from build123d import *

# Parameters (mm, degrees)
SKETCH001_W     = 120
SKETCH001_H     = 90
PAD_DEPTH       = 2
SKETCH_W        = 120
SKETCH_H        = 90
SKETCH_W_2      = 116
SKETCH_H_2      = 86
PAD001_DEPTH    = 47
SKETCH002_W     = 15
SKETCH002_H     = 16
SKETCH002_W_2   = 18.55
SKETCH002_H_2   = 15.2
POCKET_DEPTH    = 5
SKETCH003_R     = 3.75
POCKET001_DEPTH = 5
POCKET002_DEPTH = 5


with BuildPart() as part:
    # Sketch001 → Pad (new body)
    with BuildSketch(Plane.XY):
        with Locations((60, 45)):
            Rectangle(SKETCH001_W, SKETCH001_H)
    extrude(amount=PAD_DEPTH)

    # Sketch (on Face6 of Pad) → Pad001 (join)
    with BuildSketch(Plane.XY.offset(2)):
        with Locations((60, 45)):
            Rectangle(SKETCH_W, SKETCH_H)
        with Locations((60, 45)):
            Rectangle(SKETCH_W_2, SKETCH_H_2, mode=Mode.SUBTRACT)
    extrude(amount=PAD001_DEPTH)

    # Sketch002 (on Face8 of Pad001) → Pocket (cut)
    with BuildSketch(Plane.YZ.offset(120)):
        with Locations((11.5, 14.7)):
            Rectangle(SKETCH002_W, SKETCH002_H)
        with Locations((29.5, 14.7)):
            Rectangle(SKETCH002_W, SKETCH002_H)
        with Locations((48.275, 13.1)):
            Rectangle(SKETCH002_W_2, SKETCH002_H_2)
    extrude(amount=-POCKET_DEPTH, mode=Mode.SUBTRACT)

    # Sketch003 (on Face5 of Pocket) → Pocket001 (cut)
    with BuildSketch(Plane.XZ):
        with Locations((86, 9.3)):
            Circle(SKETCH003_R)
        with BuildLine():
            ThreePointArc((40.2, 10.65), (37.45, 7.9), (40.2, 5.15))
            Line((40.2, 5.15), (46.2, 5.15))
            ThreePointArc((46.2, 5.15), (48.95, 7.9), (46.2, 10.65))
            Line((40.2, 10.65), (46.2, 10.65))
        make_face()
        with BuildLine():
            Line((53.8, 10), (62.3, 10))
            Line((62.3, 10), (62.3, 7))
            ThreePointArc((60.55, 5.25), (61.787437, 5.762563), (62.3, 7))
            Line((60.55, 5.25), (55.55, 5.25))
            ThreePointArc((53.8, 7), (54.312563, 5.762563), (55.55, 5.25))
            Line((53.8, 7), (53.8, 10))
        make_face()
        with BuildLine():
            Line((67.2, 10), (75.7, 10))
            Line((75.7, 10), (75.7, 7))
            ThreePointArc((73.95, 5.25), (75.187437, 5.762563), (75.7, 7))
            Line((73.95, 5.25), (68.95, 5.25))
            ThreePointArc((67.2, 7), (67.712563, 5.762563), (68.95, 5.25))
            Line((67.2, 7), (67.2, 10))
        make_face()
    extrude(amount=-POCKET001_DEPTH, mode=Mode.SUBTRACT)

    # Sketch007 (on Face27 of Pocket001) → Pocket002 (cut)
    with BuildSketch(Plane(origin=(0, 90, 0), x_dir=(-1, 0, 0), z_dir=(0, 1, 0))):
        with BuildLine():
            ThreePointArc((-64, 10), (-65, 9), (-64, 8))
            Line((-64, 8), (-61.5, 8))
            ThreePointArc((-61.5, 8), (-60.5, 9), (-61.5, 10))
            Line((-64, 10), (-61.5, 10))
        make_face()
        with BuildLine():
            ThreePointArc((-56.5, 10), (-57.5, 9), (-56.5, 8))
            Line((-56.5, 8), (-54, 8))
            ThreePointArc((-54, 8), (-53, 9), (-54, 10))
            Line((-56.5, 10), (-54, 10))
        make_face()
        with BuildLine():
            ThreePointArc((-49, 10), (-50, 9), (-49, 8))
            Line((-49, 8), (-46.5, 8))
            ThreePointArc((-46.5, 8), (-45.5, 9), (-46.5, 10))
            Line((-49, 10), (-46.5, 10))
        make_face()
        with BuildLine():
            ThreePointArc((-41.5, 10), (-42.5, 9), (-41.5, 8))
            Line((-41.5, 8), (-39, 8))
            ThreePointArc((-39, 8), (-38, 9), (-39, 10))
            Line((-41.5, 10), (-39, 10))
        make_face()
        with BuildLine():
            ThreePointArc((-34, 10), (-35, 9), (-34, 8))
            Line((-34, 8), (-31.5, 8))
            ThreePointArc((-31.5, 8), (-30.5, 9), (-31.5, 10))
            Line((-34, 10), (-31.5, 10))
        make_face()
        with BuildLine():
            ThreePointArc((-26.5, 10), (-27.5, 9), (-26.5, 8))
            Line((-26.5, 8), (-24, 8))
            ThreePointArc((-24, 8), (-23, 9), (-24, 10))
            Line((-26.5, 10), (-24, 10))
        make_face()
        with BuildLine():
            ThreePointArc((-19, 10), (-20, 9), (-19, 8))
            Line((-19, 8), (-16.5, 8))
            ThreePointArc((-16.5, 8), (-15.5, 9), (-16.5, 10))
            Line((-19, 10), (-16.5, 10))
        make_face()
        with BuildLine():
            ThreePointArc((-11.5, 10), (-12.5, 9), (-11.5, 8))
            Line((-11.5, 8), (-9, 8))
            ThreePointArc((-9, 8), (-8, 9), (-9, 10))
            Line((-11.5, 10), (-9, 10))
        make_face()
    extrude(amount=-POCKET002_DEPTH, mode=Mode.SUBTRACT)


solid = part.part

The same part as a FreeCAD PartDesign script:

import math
import FreeCAD as App
import Part
import Sketcher

doc = App.newDocument("Part")
body = doc.addObject("PartDesign::Body", "Body")

# Sketch on XY plane
sketch1 = body.newObject("Sketcher::SketchObject", "Sketch")
sketch1.AttachmentSupport = (doc.getObject("XY_Plane"), [""])
sketch1.MapMode = "FlatFace"
sketch1.addGeometry([
    Part.LineSegment(App.Vector(0, 90, 0), App.Vector(0, 0, 0)),
    Part.LineSegment(App.Vector(0, 0, 0), App.Vector(120, 0, 0)),
    Part.LineSegment(App.Vector(120, 0, 0), App.Vector(120, 90, 0)),
    Part.LineSegment(App.Vector(120, 90, 0), App.Vector(0, 90, 0)),
], False)
sketch1.addConstraint([
    Sketcher.Constraint("Coincident", 0, 2, 1, 1),
    Sketcher.Constraint("Coincident", 1, 2, 2, 1),
    Sketcher.Constraint("Coincident", 2, 2, 3, 1),
    Sketcher.Constraint("Coincident", 3, 2, 0, 1),
    Sketcher.Constraint("Vertical", 0),
    Sketcher.Constraint("Horizontal", 1),
    Sketcher.Constraint("Vertical", 2),
    Sketcher.Constraint("Horizontal", 3),
    Sketcher.Constraint("Coincident", 0, 2, -1, 1),
    Sketcher.Constraint("DistanceX", 1, 1, 1, 2, 120.0),
    Sketcher.Constraint("DistanceY", 0, 2, 0, 1, 90.0),
])
pad1 = body.newObject("PartDesign::Pad", "Pad")
pad1.Profile = sketch1
pad1.Length = 2

# Sketch on XY plane
sketch2 = body.newObject("Sketcher::SketchObject", "Sketch001")
sketch2.AttachmentSupport = (doc.getObject("XY_Plane"), [""])
sketch2.MapMode = "FlatFace"
sketch2.AttachmentOffset = App.Placement(App.Vector(0, 0, 2), App.Rotation())
sketch2.addGeometry([
    Part.LineSegment(App.Vector(0, 90, 0), App.Vector(0, 0, 0)),  # 0
    Part.LineSegment(App.Vector(0, 0, 0), App.Vector(120, 0, 0)),  # 1
    Part.LineSegment(App.Vector(120, 0, 0), App.Vector(120, 90, 0)),  # 2
    Part.LineSegment(App.Vector(120, 90, 0), App.Vector(0, 90, 0)),  # 3
    Part.LineSegment(App.Vector(118, 2, 0), App.Vector(2, 2, 0)),  # 4
    Part.LineSegment(App.Vector(2, 2, 0), App.Vector(2, 88, 0)),  # 5
    Part.LineSegment(App.Vector(2, 88, 0), App.Vector(118, 88, 0)),  # 6
    Part.LineSegment(App.Vector(118, 88, 0), App.Vector(118, 2, 0)),  # 7
], False)
sketch2.addConstraint([
    Sketcher.Constraint("Coincident", 0, 2, 1, 1),
    Sketcher.Constraint("Coincident", 1, 2, 2, 1),
    Sketcher.Constraint("Coincident", 2, 2, 3, 1),
    Sketcher.Constraint("Coincident", 3, 2, 0, 1),
    Sketcher.Constraint("Coincident", 4, 2, 5, 1),
    Sketcher.Constraint("Coincident", 5, 2, 6, 1),
    Sketcher.Constraint("Coincident", 6, 2, 7, 1),
    Sketcher.Constraint("Coincident", 7, 2, 4, 1),
    Sketcher.Constraint("Vertical", 0),
    Sketcher.Constraint("Horizontal", 1),
    Sketcher.Constraint("Vertical", 2),
    Sketcher.Constraint("Horizontal", 3),
    Sketcher.Constraint("Horizontal", 4),
    Sketcher.Constraint("Vertical", 5),
    Sketcher.Constraint("Horizontal", 6),
    Sketcher.Constraint("Vertical", 7),
    Sketcher.Constraint("Coincident", 0, 2, -1, 1),
    Sketcher.Constraint("DistanceX", 1, 1, 1, 2, 120.0),
    Sketcher.Constraint("DistanceX", 4, 2, 4, 1, 116.0),
    Sketcher.Constraint("DistanceY", 0, 2, 0, 1, 90.0),
    Sketcher.Constraint("DistanceY", 5, 1, 5, 2, 86.0),
    Sketcher.Constraint("DistanceX", -1, 1, 4, 2, 2.0),
    Sketcher.Constraint("DistanceY", -1, 1, 4, 2, 2.0),
])
pad2 = body.newObject("PartDesign::Pad", "Pad001")
pad2.Profile = sketch2
pad2.Length = 47

# Sketch on YZ plane
sketch3 = body.newObject("Sketcher::SketchObject", "Sketch002")
sketch3.AttachmentSupport = (doc.getObject("YZ_Plane"), [""])
sketch3.MapMode = "FlatFace"
sketch3.AttachmentOffset = App.Placement(App.Vector(0, 0, 120), App.Rotation())
sketch3.addGeometry([
    Part.LineSegment(App.Vector(4, 23, 0), App.Vector(4, 7, 0)),  # 0
    Part.LineSegment(App.Vector(4, 7, 0), App.Vector(19, 7, 0)),  # 1
    Part.LineSegment(App.Vector(19, 7, 0), App.Vector(19, 23, 0)),  # 2
    Part.LineSegment(App.Vector(19, 23, 0), App.Vector(4, 23, 0)),  # 3
    Part.LineSegment(App.Vector(22, 23, 0), App.Vector(22, 7, 0)),  # 4
    Part.LineSegment(App.Vector(22, 7, 0), App.Vector(37, 7, 0)),  # 5
    Part.LineSegment(App.Vector(37, 7, 0), App.Vector(37, 23, 0)),  # 6
    Part.LineSegment(App.Vector(37, 23, 0), App.Vector(22, 23, 0)),  # 7
    Part.LineSegment(App.Vector(39, 21, 0), App.Vector(39, 6, 0)),  # 8
    Part.LineSegment(App.Vector(39, 6, 0), App.Vector(58, 6, 0)),  # 9
    Part.LineSegment(App.Vector(58, 6, 0), App.Vector(58, 21, 0)),  # 10
    Part.LineSegment(App.Vector(58, 21, 0), App.Vector(39, 21, 0)),  # 11
], False)
sketch3.addConstraint([
    Sketcher.Constraint("Coincident", 0, 2, 1, 1),
    Sketcher.Constraint("Coincident", 1, 2, 2, 1),
    Sketcher.Constraint("Coincident", 2, 2, 3, 1),
    Sketcher.Constraint("Coincident", 3, 2, 0, 1),
    Sketcher.Constraint("Coincident", 4, 2, 5, 1),
    Sketcher.Constraint("Coincident", 5, 2, 6, 1),
    Sketcher.Constraint("Coincident", 6, 2, 7, 1),
    Sketcher.Constraint("Coincident", 7, 2, 4, 1),
    Sketcher.Constraint("Coincident", 8, 2, 9, 1),
    Sketcher.Constraint("Coincident", 9, 2, 10, 1),
    Sketcher.Constraint("Coincident", 10, 2, 11, 1),
    Sketcher.Constraint("Coincident", 11, 2, 8, 1),
    Sketcher.Constraint("Vertical", 0),
    Sketcher.Constraint("Horizontal", 1),
    Sketcher.Constraint("Vertical", 2),
    Sketcher.Constraint("Horizontal", 3),
    Sketcher.Constraint("Vertical", 4),
    Sketcher.Constraint("Horizontal", 5),
    Sketcher.Constraint("Vertical", 6),
    Sketcher.Constraint("Horizontal", 7),
    Sketcher.Constraint("Vertical", 8),
    Sketcher.Constraint("Horizontal", 9),
    Sketcher.Constraint("Vertical", 10),
    Sketcher.Constraint("Horizontal", 11),
    Sketcher.Constraint("Horizontal", 1, 2, 4, 2),
    Sketcher.Constraint("Horizontal", 3, 2, 6, 2),
    Sketcher.Constraint("Equal", 3, 5),
    Sketcher.Constraint("DistanceX", 1, 1, 1, 2, 15.0),
    Sketcher.Constraint("DistanceY", 0, 2, 0, 1, 16.0),
    Sketcher.Constraint("DistanceY", 8, 2, 8, 1, 15.2),
    Sketcher.Constraint("DistanceX", -1, 1, 0, 2, 4.0),
    Sketcher.Constraint("DistanceX", -1, 1, 4, 2, 22.0),
    Sketcher.Constraint("DistanceX", -1, 1, 8, 2, 39.0),
    Sketcher.Constraint("DistanceY", 10, 2, 6, 2, 2.0),
    Sketcher.Constraint("DistanceX", 9, 1, 9, 2, 18.55),
    Sketcher.Constraint("DistanceY", -1, 1, 0, 2, 6.7),
])
pocket1 = body.newObject("PartDesign::Pocket", "Pocket")
pocket1.Profile = sketch3
pocket1.Length = 5

# Sketch on XZ plane
sketch4 = body.newObject("Sketcher::SketchObject", "Sketch003")
sketch4.AttachmentSupport = (doc.getObject("XZ_Plane"), [""])
sketch4.MapMode = "FlatFace"
sketch4.addGeometry([
    Part.Circle(App.Vector(86, 9.3, 0), App.Vector(0, 0, 1), 3.8),  # 0
    Part.ArcOfCircle(Part.Circle(App.Vector(40.2, 7.9, 0), App.Vector(0, 0, 1), 2.8), math.radians(90), math.radians(270)),  # 1
    Part.LineSegment(App.Vector(40.2, 5.2, 0), App.Vector(46.2, 5.2, 0)),  # 2
    Part.ArcOfCircle(Part.Circle(App.Vector(46.2, 7.9, 0), App.Vector(0, 0, 1), 2.8), math.radians(-90), math.radians(90)),  # 3
    Part.LineSegment(App.Vector(46.2, 10.7, 0), App.Vector(40.2, 10.7, 0)),  # 4
    Part.LineSegment(App.Vector(62.3, 10, 0), App.Vector(53.8, 10, 0)),  # 5
    Part.LineSegment(App.Vector(53.8, 10, 0), App.Vector(53.8, 7, 0)),  # 6
    Part.ArcOfCircle(Part.Circle(App.Vector(55.5, 7, 0), App.Vector(0, 0, 1), 1.7), math.radians(180), math.radians(270)),  # 7
    Part.LineSegment(App.Vector(55.5, 5.2, 0), App.Vector(60.5, 5.2, 0)),  # 8
    Part.ArcOfCircle(Part.Circle(App.Vector(60.6, 7, 0), App.Vector(0, 0, 1), 1.7), math.radians(-90), math.radians(0)),  # 9
    Part.LineSegment(App.Vector(62.3, 7, 0), App.Vector(62.3, 10, 0)),  # 10
    Part.LineSegment(App.Vector(75.7, 10, 0), App.Vector(67.2, 10, 0)),  # 11
    Part.LineSegment(App.Vector(67.2, 10, 0), App.Vector(67.2, 7, 0)),  # 12
    Part.ArcOfCircle(Part.Circle(App.Vector(68.9, 7, 0), App.Vector(0, 0, 1), 1.7), math.radians(180), math.radians(270)),  # 13
    Part.LineSegment(App.Vector(69, 5.2, 0), App.Vector(74, 5.2, 0)),  # 14
    Part.ArcOfCircle(Part.Circle(App.Vector(74, 7, 0), App.Vector(0, 0, 1), 1.7), math.radians(-90), math.radians(0)),  # 15
    Part.LineSegment(App.Vector(75.7, 7, 0), App.Vector(75.7, 10, 0)),  # 16
], False)
sketch4.addConstraint([
    Sketcher.Constraint("Tangent", 1, 2, 2, 1),
    Sketcher.Constraint("Tangent", 2, 2, 3, 1),
    Sketcher.Constraint("Tangent", 3, 2, 4, 1),
    Sketcher.Constraint("Tangent", 4, 2, 1, 1),
    Sketcher.Constraint("Coincident", 5, 2, 6, 1),
    Sketcher.Constraint("Tangent", 6, 2, 7, 1),
    Sketcher.Constraint("Tangent", 7, 2, 8, 1),
    Sketcher.Constraint("Tangent", 8, 2, 9, 1),
    Sketcher.Constraint("Tangent", 9, 2, 10, 1),
    Sketcher.Constraint("Coincident", 10, 2, 5, 1),
    Sketcher.Constraint("Coincident", 11, 2, 12, 1),
    Sketcher.Constraint("Tangent", 12, 2, 13, 1),
    Sketcher.Constraint("Tangent", 13, 2, 14, 1),
    Sketcher.Constraint("Tangent", 14, 2, 15, 1),
    Sketcher.Constraint("Tangent", 15, 2, 16, 1),
    Sketcher.Constraint("Coincident", 16, 2, 11, 1),
    Sketcher.Constraint("Horizontal", 2),
    Sketcher.Constraint("Horizontal", 4),
    Sketcher.Constraint("Horizontal", 5),
    Sketcher.Constraint("Vertical", 6),
    Sketcher.Constraint("Horizontal", 8),
    Sketcher.Constraint("Vertical", 10),
    Sketcher.Constraint("Horizontal", 11),
    Sketcher.Constraint("Vertical", 12),
    Sketcher.Constraint("Horizontal", 14),
    Sketcher.Constraint("Vertical", 16),
    Sketcher.Constraint("Equal", 7, 9),
    Sketcher.Constraint("Equal", 9, 13),
    Sketcher.Constraint("Equal", 13, 15),
    Sketcher.Constraint("Horizontal", 9, 3, 13, 3),
    Sketcher.Constraint("Horizontal", 10, 2, 11, 2),
    Sketcher.Constraint("Equal", 5, 11),
    Sketcher.Constraint("Diameter", 0, 7.5),
    Sketcher.Constraint("DistanceX", 2, 1, 2, 2, 6.0),
    Sketcher.Constraint("DistanceX", 8, 1, 8, 2, 5.0),
    Sketcher.Constraint("DistanceY", 6, 2, 6, 1, 3.0),
    Sketcher.Constraint("Radius", 1, 2.75),
    Sketcher.Constraint("Radius", 7, 1.75),
    Sketcher.Constraint("DistanceX", -1, 1, 0, 3, 86.0),
    Sketcher.Constraint("DistanceY", -1, 1, 7, 3, 7.0),
    Sketcher.Constraint("DistanceY", -1, 1, 0, 3, 9.3),
    Sketcher.Constraint("DistanceX", -1, 1, 1, 3, 40.2),
    Sketcher.Constraint("DistanceY", -1, 1, 1, 3, 7.9),
    Sketcher.Constraint("DistanceX", -1, 1, 5, 2, 53.8),
    Sketcher.Constraint("DistanceX", -1, 1, 11, 2, 67.2),
])
pocket2 = body.newObject("PartDesign::Pocket", "Pocket001")
pocket2.Profile = sketch4
pocket2.Length = 5

# Sketch on XZ plane
sketch5 = body.newObject("Sketcher::SketchObject", "Sketch004")
sketch5.AttachmentSupport = (doc.getObject("XZ_Plane"), [""])
sketch5.MapMode = "FlatFace"
sketch5.AttachmentOffset = App.Placement(App.Vector(0, 0, -90), App.Rotation())
sketch5.addGeometry([
    Part.ArcOfCircle(Part.Circle(App.Vector(64, 9, 0), App.Vector(0, 0, 1), 1), math.radians(-90), math.radians(90)),  # 0
    Part.LineSegment(App.Vector(64, 8, 0), App.Vector(61.5, 8, 0)),  # 1
    Part.ArcOfCircle(Part.Circle(App.Vector(61.5, 9, 0), App.Vector(0, 0, 1), 1), math.radians(90), math.radians(270)),  # 2
    Part.LineSegment(App.Vector(61.5, 10, 0), App.Vector(64, 10, 0)),  # 3
    Part.ArcOfCircle(Part.Circle(App.Vector(56.5, 9, 0), App.Vector(0, 0, 1), 1), math.radians(-90), math.radians(90)),  # 4
    Part.LineSegment(App.Vector(56.5, 8, 0), App.Vector(54, 8, 0)),  # 5
    Part.ArcOfCircle(Part.Circle(App.Vector(54, 9, 0), App.Vector(0, 0, 1), 1), math.radians(90), math.radians(270)),  # 6
    Part.LineSegment(App.Vector(54, 10, 0), App.Vector(56.5, 10, 0)),  # 7
    Part.ArcOfCircle(Part.Circle(App.Vector(49, 9, 0), App.Vector(0, 0, 1), 1), math.radians(-90), math.radians(90)),  # 8
    Part.LineSegment(App.Vector(49, 8, 0), App.Vector(46.5, 8, 0)),  # 9
    Part.ArcOfCircle(Part.Circle(App.Vector(46.5, 9, 0), App.Vector(0, 0, 1), 1), math.radians(90), math.radians(270)),  # 10
    Part.LineSegment(App.Vector(46.5, 10, 0), App.Vector(49, 10, 0)),  # 11
    Part.ArcOfCircle(Part.Circle(App.Vector(41.5, 9, 0), App.Vector(0, 0, 1), 1), math.radians(-90), math.radians(90)),  # 12
    Part.LineSegment(App.Vector(41.5, 8, 0), App.Vector(39, 8, 0)),  # 13
    Part.ArcOfCircle(Part.Circle(App.Vector(39, 9, 0), App.Vector(0, 0, 1), 1), math.radians(90), math.radians(270)),  # 14
    Part.LineSegment(App.Vector(39, 10, 0), App.Vector(41.5, 10, 0)),  # 15
    Part.ArcOfCircle(Part.Circle(App.Vector(34, 9, 0), App.Vector(0, 0, 1), 1), math.radians(-90), math.radians(90)),  # 16
    Part.LineSegment(App.Vector(34, 8, 0), App.Vector(31.5, 8, 0)),  # 17
    Part.ArcOfCircle(Part.Circle(App.Vector(31.5, 9, 0), App.Vector(0, 0, 1), 1), math.radians(90), math.radians(270)),  # 18
    Part.LineSegment(App.Vector(31.5, 10, 0), App.Vector(34, 10, 0)),  # 19
    Part.ArcOfCircle(Part.Circle(App.Vector(26.5, 9, 0), App.Vector(0, 0, 1), 1), math.radians(-90), math.radians(90)),  # 20
    Part.LineSegment(App.Vector(26.5, 8, 0), App.Vector(24, 8, 0)),  # 21
    Part.ArcOfCircle(Part.Circle(App.Vector(24, 9, 0), App.Vector(0, 0, 1), 1), math.radians(90), math.radians(270)),  # 22
    Part.LineSegment(App.Vector(24, 10, 0), App.Vector(26.5, 10, 0)),  # 23
    Part.ArcOfCircle(Part.Circle(App.Vector(19, 9, 0), App.Vector(0, 0, 1), 1), math.radians(-90), math.radians(90)),  # 24
    Part.LineSegment(App.Vector(19, 8, 0), App.Vector(16.5, 8, 0)),  # 25
    Part.ArcOfCircle(Part.Circle(App.Vector(16.5, 9, 0), App.Vector(0, 0, 1), 1), math.radians(90), math.radians(270)),  # 26
    Part.LineSegment(App.Vector(16.5, 10, 0), App.Vector(19, 10, 0)),  # 27
    Part.ArcOfCircle(Part.Circle(App.Vector(11.5, 9, 0), App.Vector(0, 0, 1), 1), math.radians(-90), math.radians(90)),  # 28
    Part.LineSegment(App.Vector(11.5, 8, 0), App.Vector(9, 8, 0)),  # 29
    Part.ArcOfCircle(Part.Circle(App.Vector(9, 9, 0), App.Vector(0, 0, 1), 1), math.radians(90), math.radians(270)),  # 30
    Part.LineSegment(App.Vector(9, 10, 0), App.Vector(11.5, 10, 0)),  # 31
], False)
sketch5.addConstraint([
    Sketcher.Constraint("Tangent", 0, 1, 1, 1),
    Sketcher.Constraint("Tangent", 1, 2, 2, 2),
    Sketcher.Constraint("Tangent", 2, 1, 3, 1),
    Sketcher.Constraint("Tangent", 3, 2, 0, 2),
    Sketcher.Constraint("Tangent", 4, 1, 5, 1),
    Sketcher.Constraint("Tangent", 5, 2, 6, 2),
    Sketcher.Constraint("Tangent", 6, 1, 7, 1),
    Sketcher.Constraint("Tangent", 7, 2, 4, 2),
    Sketcher.Constraint("Tangent", 8, 1, 9, 1),
    Sketcher.Constraint("Tangent", 9, 2, 10, 2),
    Sketcher.Constraint("Tangent", 10, 1, 11, 1),
    Sketcher.Constraint("Tangent", 11, 2, 8, 2),
    Sketcher.Constraint("Tangent", 12, 1, 13, 1),
    Sketcher.Constraint("Tangent", 13, 2, 14, 2),
    Sketcher.Constraint("Tangent", 14, 1, 15, 1),
    Sketcher.Constraint("Tangent", 15, 2, 12, 2),
    Sketcher.Constraint("Tangent", 16, 1, 17, 1),
    Sketcher.Constraint("Tangent", 17, 2, 18, 2),
    Sketcher.Constraint("Tangent", 18, 1, 19, 1),
    Sketcher.Constraint("Tangent", 19, 2, 16, 2),
    Sketcher.Constraint("Tangent", 20, 1, 21, 1),
    Sketcher.Constraint("Tangent", 21, 2, 22, 2),
    Sketcher.Constraint("Tangent", 22, 1, 23, 1),
    Sketcher.Constraint("Tangent", 23, 2, 20, 2),
    Sketcher.Constraint("Tangent", 24, 1, 25, 1),
    Sketcher.Constraint("Tangent", 25, 2, 26, 2),
    Sketcher.Constraint("Tangent", 26, 1, 27, 1),
    Sketcher.Constraint("Tangent", 27, 2, 24, 2),
    Sketcher.Constraint("Tangent", 28, 1, 29, 1),
    Sketcher.Constraint("Tangent", 29, 2, 30, 2),
    Sketcher.Constraint("Tangent", 30, 1, 31, 1),
    Sketcher.Constraint("Tangent", 31, 2, 28, 2),
    Sketcher.Constraint("Horizontal", 1),
    Sketcher.Constraint("Horizontal", 3),
    Sketcher.Constraint("Horizontal", 5),
    Sketcher.Constraint("Horizontal", 7),
    Sketcher.Constraint("Horizontal", 9),
    Sketcher.Constraint("Horizontal", 11),
    Sketcher.Constraint("Horizontal", 13),
    Sketcher.Constraint("Horizontal", 15),
    Sketcher.Constraint("Horizontal", 17),
    Sketcher.Constraint("Horizontal", 19),
    Sketcher.Constraint("Horizontal", 21),
    Sketcher.Constraint("Horizontal", 23),
    Sketcher.Constraint("Horizontal", 25),
    Sketcher.Constraint("Horizontal", 27),
    Sketcher.Constraint("Horizontal", 29),
    Sketcher.Constraint("Horizontal", 31),
    Sketcher.Constraint("Equal", 2, 4),
    Sketcher.Constraint("Equal", 6, 8),
    Sketcher.Constraint("Equal", 10, 12),
    Sketcher.Constraint("Equal", 14, 16),
    Sketcher.Constraint("Equal", 18, 20),
    Sketcher.Constraint("Equal", 22, 24),
    Sketcher.Constraint("Equal", 26, 28),
    Sketcher.Constraint("Horizontal", 2, 3, 4, 3),
    Sketcher.Constraint("Horizontal", 6, 3, 8, 3),
    Sketcher.Constraint("Horizontal", 10, 3, 12, 3),
    Sketcher.Constraint("Horizontal", 14, 3, 16, 3),
    Sketcher.Constraint("Horizontal", 18, 3, 20, 3),
    Sketcher.Constraint("Horizontal", 22, 3, 24, 3),
    Sketcher.Constraint("Horizontal", 26, 3, 28, 3),
    Sketcher.Constraint("Equal", 3, 5),
    Sketcher.Constraint("Equal", 7, 9),
    Sketcher.Constraint("Equal", 11, 13),
    Sketcher.Constraint("Equal", 15, 17),
    Sketcher.Constraint("Equal", 19, 21),
    Sketcher.Constraint("Equal", 23, 25),
    Sketcher.Constraint("Equal", 27, 29),
    Sketcher.Constraint("Radius", 0, 1.0),
    Sketcher.Constraint("DistanceX", 1, 2, 1, 1, 2.5),
    Sketcher.Constraint("DistanceX", -1, 1, 0, 3, 64.0),
    Sketcher.Constraint("DistanceY", -1, 1, 0, 3, 9.0),
    Sketcher.Constraint("DistanceX", -1, 1, 6, 3, 54.0),
    Sketcher.Constraint("DistanceX", -1, 1, 8, 3, 49.0),
    Sketcher.Constraint("DistanceX", -1, 1, 14, 3, 39.0),
    Sketcher.Constraint("DistanceX", -1, 1, 16, 3, 34.0),
    Sketcher.Constraint("DistanceX", -1, 1, 22, 3, 24.0),
    Sketcher.Constraint("DistanceX", -1, 1, 24, 3, 19.0),
    Sketcher.Constraint("DistanceX", -1, 1, 30, 3, 9.0),
])
pocket3 = body.newObject("PartDesign::Pocket", "Pocket002")
pocket3.Profile = sketch5
pocket3.Length = 5
pocket3.Reversed = True

doc.recompute()
